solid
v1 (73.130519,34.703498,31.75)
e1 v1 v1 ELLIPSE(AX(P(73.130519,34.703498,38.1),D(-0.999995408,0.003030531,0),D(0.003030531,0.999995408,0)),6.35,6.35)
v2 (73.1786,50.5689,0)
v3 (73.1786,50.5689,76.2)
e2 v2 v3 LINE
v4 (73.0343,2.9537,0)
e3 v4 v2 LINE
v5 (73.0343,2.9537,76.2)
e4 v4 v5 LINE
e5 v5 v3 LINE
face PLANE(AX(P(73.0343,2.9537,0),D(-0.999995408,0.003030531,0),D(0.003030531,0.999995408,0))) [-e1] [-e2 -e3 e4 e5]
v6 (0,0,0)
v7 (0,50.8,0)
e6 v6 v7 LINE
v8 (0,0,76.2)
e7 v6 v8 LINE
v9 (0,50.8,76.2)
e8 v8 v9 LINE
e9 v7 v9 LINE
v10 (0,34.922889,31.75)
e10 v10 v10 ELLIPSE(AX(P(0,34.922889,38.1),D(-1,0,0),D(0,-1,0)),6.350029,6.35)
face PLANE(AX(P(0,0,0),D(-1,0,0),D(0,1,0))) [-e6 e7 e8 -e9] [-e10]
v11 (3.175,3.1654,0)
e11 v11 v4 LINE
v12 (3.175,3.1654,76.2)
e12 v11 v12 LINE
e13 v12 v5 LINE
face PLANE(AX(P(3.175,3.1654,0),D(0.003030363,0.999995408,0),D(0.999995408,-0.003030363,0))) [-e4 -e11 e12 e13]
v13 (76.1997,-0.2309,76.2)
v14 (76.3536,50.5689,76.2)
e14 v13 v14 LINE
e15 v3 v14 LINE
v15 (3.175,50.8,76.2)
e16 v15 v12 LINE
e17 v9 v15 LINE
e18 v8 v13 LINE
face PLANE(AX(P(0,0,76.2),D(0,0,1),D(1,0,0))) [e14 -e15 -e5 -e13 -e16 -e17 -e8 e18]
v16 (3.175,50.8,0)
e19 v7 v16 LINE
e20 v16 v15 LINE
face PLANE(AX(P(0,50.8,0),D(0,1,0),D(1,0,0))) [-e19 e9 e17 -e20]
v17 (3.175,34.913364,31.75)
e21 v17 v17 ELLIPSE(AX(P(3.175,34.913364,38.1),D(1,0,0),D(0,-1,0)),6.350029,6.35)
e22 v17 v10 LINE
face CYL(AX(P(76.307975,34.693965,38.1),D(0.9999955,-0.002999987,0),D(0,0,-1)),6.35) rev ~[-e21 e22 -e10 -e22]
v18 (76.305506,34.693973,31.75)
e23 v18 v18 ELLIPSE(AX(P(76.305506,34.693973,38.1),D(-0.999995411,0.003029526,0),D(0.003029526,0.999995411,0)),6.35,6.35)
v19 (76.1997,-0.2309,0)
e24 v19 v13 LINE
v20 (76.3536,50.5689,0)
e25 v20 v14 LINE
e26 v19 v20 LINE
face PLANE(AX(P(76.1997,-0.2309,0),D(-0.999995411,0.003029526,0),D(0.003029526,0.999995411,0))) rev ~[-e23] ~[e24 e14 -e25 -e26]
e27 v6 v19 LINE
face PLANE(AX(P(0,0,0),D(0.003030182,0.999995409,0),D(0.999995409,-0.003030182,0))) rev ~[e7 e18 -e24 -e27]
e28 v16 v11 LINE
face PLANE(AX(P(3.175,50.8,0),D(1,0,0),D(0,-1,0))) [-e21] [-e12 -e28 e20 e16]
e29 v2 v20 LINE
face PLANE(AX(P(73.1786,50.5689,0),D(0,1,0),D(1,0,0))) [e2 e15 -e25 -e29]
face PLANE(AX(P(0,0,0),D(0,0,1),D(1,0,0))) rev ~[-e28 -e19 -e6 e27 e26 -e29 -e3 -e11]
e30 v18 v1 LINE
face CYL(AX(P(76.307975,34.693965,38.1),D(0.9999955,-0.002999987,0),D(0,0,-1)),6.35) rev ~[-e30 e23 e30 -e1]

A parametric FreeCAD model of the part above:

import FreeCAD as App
import Part
import Sketcher
Q = App.Units.Quantity

doc = App.newDocument("Part")
body = doc.addObject("PartDesign::Body", "Body")

sketch1 = body.newObject("Sketcher::SketchObject", "Sketch")
sketch1.AttachmentSupport = (doc.getObject("XY_Plane"), [""])
sketch1.MapMode = "FlatFace"
sketch1.addGeometry([
    Part.LineSegment(App.Vector(0, 50.8, 0), App.Vector(0, 0, 0)),
    Part.LineSegment(App.Vector(0, 0, 0), App.Vector(76.2, -0.2, 0)),
    Part.LineSegment(App.Vector(76.2, -0.2, 0), App.Vector(76.4, 50.6, 0)),
    Part.LineSegment(App.Vector(76.4, 50.6, 0), App.Vector(73.2, 50.6, 0)),
    Part.LineSegment(App.Vector(73.2, 50.6, 0), App.Vector(73, 3, 0)),
    Part.LineSegment(App.Vector(73, 3, 0), App.Vector(3.2, 3.2, 0)),
    Part.LineSegment(App.Vector(3.2, 3.2, 0), App.Vector(3.2, 50.8, 0)),
    Part.LineSegment(App.Vector(3.2, 50.8, 0), App.Vector(0, 50.8, 0)),
], False)
sketch1.addConstraint([
    Sketcher.Constraint("Coincident", 0, 2, 1, 1),
    Sketcher.Constraint("Coincident", 1, 2, 2, 1),
    Sketcher.Constraint("Coincident", 2, 2, 3, 1),
    Sketcher.Constraint("Coincident", 3, 2, 4, 1),
    Sketcher.Constraint("Coincident", 4, 2, 5, 1),
    Sketcher.Constraint("Coincident", 5, 2, 6, 1),
    Sketcher.Constraint("Coincident", 6, 2, 7, 1),
    Sketcher.Constraint("Coincident", 7, 2, 0, 1),
    Sketcher.Constraint("Vertical", 0),
    Sketcher.Constraint("Horizontal", 3),
    Sketcher.Constraint("Vertical", 6),
    Sketcher.Constraint("Horizontal", 7),
    Sketcher.Constraint("Coincident", 0, 2, -1, 1),
    Sketcher.Constraint("Perpendicular", 1, 2),
    Sketcher.Constraint("Parallel", 2, 4),
    Sketcher.Constraint("Perpendicular", 4, 5),
    Sketcher.Constraint("Equal", 3, 7),
    Sketcher.Constraint("DistanceY", 0, 2, 0, 1, Q("2 in")),
    Sketcher.Constraint("Distance", 1, Q("3 in")),
    Sketcher.Constraint("Distance", 2, Q("2 in")),
    Sketcher.Constraint("DistanceX", 3, 2, 3, 1, Q("0.125 in")),
    Sketcher.Constraint("DistanceY", 6, 1, 6, 2, 47.6346),
    Sketcher.Constraint("DistanceY", 1, 2, -1, 1, Q("0.0091 in")),
])
pad1 = body.newObject("PartDesign::Pad", "Pad")
pad1.Profile = sketch1
pad1.Length = Q("3 in")

sketch2 = body.newObject("Sketcher::SketchObject", "Sketch001")
sketch2.Placement = App.Placement(App.Vector(76.3536, 50.5689, 76.2), App.Rotation(App.Vector(0, 0, -1), App.Vector(0.002999987, 0.9999955, 0), App.Vector(0.9999955, -0.002999987, 0), "ZXY"))
sketch2.addGeometry(Part.Circle(App.Vector(38, -16, 0), App.Vector(0, 0, 1), 6), False)
sketch2.addConstraint([
    Sketcher.Constraint("Diameter", 0, Q("0.5 in")),
    Sketcher.Constraint("DistanceX", -1, 1, 0, 3, Q("1.5 in")),
    Sketcher.Constraint("DistanceY", 0, 3, -1, 1, Q("0.625 in")),
])
pocket1 = body.newObject("PartDesign::Pocket", "Pocket")
pocket1.Profile = sketch2
pocket1.Length = Q("4.0625 in")

doc.recompute()
